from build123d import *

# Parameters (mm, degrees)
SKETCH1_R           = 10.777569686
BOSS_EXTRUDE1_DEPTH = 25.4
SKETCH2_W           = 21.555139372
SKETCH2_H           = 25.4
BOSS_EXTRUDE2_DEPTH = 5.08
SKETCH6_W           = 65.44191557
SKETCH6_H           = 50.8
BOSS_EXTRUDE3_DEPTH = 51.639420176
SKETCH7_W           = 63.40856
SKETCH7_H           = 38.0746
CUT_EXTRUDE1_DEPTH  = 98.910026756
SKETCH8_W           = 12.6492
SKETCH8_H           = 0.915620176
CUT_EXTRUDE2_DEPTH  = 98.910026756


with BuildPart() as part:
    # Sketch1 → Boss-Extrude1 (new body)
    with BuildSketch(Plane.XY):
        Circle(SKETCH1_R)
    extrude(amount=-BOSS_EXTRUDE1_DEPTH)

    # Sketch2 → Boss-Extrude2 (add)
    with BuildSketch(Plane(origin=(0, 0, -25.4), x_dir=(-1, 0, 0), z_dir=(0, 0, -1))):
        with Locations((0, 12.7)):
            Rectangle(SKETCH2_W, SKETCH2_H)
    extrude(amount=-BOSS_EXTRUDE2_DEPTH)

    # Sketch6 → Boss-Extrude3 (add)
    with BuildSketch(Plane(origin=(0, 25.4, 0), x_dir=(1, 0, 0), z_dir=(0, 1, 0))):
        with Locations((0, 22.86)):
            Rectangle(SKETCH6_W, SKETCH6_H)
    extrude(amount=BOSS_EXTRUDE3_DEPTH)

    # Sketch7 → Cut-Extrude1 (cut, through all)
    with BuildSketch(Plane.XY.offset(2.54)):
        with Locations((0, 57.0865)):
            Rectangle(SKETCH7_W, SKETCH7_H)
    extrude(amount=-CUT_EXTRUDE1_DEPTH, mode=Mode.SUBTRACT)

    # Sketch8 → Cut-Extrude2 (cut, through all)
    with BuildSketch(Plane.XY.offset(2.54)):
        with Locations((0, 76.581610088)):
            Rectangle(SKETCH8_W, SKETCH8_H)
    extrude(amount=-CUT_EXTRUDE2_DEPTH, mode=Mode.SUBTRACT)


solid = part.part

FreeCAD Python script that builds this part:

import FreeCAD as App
import Part
import Sketcher

V = App.Vector
Q = App.Units.Quantity

doc = App.newDocument("Part")
body = doc.addObject("PartDesign::Body", "Body")

sketch1 = body.newObject("Sketcher::SketchObject", "Sketch")
sketch1.AttachmentSupport = (doc.getObject("XY_Plane"), [""])
sketch1.MapMode = "FlatFace"
sketch1.addGeometry(Part.Circle(V(0, 0, 0), V(0, 0, 1), 10.77757), False)
sketch1.addConstraint(Sketcher.Constraint("Coincident", 0, 3, -1, 1))
sketch1.addConstraint(Sketcher.Constraint("Diameter", 0, Q("21.555139 mm")))
pad1 = body.newObject("PartDesign::Pad", "Pad")
pad1.Profile = sketch1
pad1.Length = Q("1 in")
pad1.Reversed = True

sketch2 = body.newObject("Sketcher::SketchObject", "Sketch001")
sketch2.AttachmentSupport = (doc.getObject("XY_Plane"), [""])
sketch2.MapMode = "FlatFace"
sketch2.AttachmentOffset = App.Placement(V(0, 0, -1 * 25.4), App.Rotation())
sketch2.addGeometry(Part.LineSegment(V(10.77757, 25.4, 0), V(10.77757, 0, 0)), False)
sketch2.addGeometry(Part.LineSegment(V(10.77757, 0, 0), V(-10.77757, 0, 0)), False)
sketch2.addGeometry(Part.LineSegment(V(-10.77757, 0, 0), V(-10.77757, 25.4, 0)), False)
sketch2.addGeometry(Part.LineSegment(V(-10.77757, 25.4, 0), V(10.77757, 25.4, 0)), False)
sketch2.addConstraint(Sketcher.Constraint("Coincident", 0, 2, 1, 1))
sketch2.addConstraint(Sketcher.Constraint("Coincident", 1, 2, 2, 1))
sketch2.addConstraint(Sketcher.Constraint("Coincident", 2, 2, 3, 1))
sketch2.addConstraint(Sketcher.Constraint("Coincident", 3, 2, 0, 1))
sketch2.addConstraint(Sketcher.Constraint("Vertical", 0))
sketch2.addConstraint(Sketcher.Constraint("Horizontal", 1))
sketch2.addConstraint(Sketcher.Constraint("Vertical", 2))
sketch2.addConstraint(Sketcher.Constraint("Horizontal", 3))
sketch2.addConstraint(Sketcher.Constraint("Symmetric", 0, 2, 1, 2, -1, 1))
sketch2.addConstraint(Sketcher.Constraint("DistanceY", 0, 2, 0, 1, Q("1 in")))
sketch2.addConstraint(Sketcher.Constraint("DistanceX", 1, 2, 1, 1, Q("21.555139 mm")))
pad2 = body.newObject("PartDesign::Pad", "Pad001")
pad2.Profile = sketch2
pad2.Length = Q("0.2 in")

sketch3 = body.newObject("Sketcher::SketchObject", "Sketch002")
sketch3.AttachmentSupport = (doc.getObject("XZ_Plane"), [""])
sketch3.MapMode = "FlatFace"
sketch3.AttachmentOffset = App.Placement(V(0, 0, -1 * 25.4), App.Rotation())
sketch3.addGeometry(Part.LineSegment(V(-32.720958, -48.26, 0), V(-32.720958, 2.54, 0)), False)
sketch3.addGeometry(Part.LineSegment(V(-32.720958, 2.54, 0), V(32.720958, 2.54, 0)), False)
sketch3.addGeometry(Part.LineSegment(V(32.720958, 2.54, 0), V(32.720958, -48.26, 0)), False)
sketch3.addGeometry(Part.LineSegment(V(32.720958, -48.26, 0), V(-32.720958, -48.26, 0)), False)
sketch3.addConstraint(Sketcher.Constraint("Coincident", 0, 2, 1, 1))
sketch3.addConstraint(Sketcher.Constraint("Coincident", 1, 2, 2, 1))
sketch3.addConstraint(Sketcher.Constraint("Coincident", 2, 2, 3, 1))
sketch3.addConstraint(Sketcher.Constraint("Coincident", 3, 2, 0, 1))
sketch3.addConstraint(Sketcher.Constraint("Vertical", 0))
sketch3.addConstraint(Sketcher.Constraint("Horizontal", 1))
sketch3.addConstraint(Sketcher.Constraint("Vertical", 2))
sketch3.addConstraint(Sketcher.Constraint("Horizontal", 3))
sketch3.addConstraint(Sketcher.Constraint("DistanceY", 0, 1, 0, 2, Q("2 in")))
sketch3.addConstraint(Sketcher.Constraint("DistanceY", -1, 1, 0, 2, Q("0.1 in")))
sketch3.addConstraint(Sketcher.Constraint("DistanceX", 1, 1, 1, 2, Q("65.441916 mm")))
sketch3.addConstraint(Sketcher.Constraint("DistanceX", 0, 2, -1, 1, Q("32.720958 mm")))
pad3 = body.newObject("PartDesign::Pad", "Pad002")
pad3.Profile = sketch3
pad3.Length = 51.63942
pad3.Reversed = True

sketch4 = body.newObject("Sketcher::SketchObject", "Sketch003")
sketch4.AttachmentSupport = (doc.getObject("XY_Plane"), [""])
sketch4.MapMode = "FlatFace"
sketch4.AttachmentOffset = App.Placement(V(0, 0, 0.1 * 25.4), App.Rotation())
sketch4.addGeometry(Part.LineSegment(V(-31.70428, 76.1238, 0), V(-31.70428, 38.0492, 0)), False)
sketch4.addGeometry(Part.LineSegment(V(-31.70428, 38.0492, 0), V(31.70428, 38.0492, 0)), False)
sketch4.addGeometry(Part.LineSegment(V(31.70428, 38.0492, 0), V(31.70428, 76.1238, 0)), False)
sketch4.addGeometry(Part.LineSegment(V(31.70428, 76.1238, 0), V(-31.70428, 76.1238, 0)), False)
sketch4.addConstraint(Sketcher.Constraint("Coincident", 0, 2, 1, 1))
sketch4.addConstraint(Sketcher.Constraint("Coincident", 1, 2, 2, 1))
sketch4.addConstraint(Sketcher.Constraint("Coincident", 2, 2, 3, 1))
sketch4.addConstraint(Sketcher.Constraint("Coincident", 3, 2, 0, 1))
sketch4.addConstraint(Sketcher.Constraint("Vertical", 0))
sketch4.addConstraint(Sketcher.Constraint("Horizontal", 1))
sketch4.addConstraint(Sketcher.Constraint("Vertical", 2))
sketch4.addConstraint(Sketcher.Constraint("Horizontal", 3))
sketch4.addConstraint(Sketcher.Constraint("DistanceY", 0, 2, 0, 1, Q("1.499 in")))
sketch4.addConstraint(Sketcher.Constraint("DistanceX", 1, 1, 1, 2, Q("2.4964 in")))
sketch4.addConstraint(Sketcher.Constraint("DistanceY", -1, 1, 0, 2, Q("1.498 in")))
sketch4.addConstraint(Sketcher.Constraint("DistanceX", 0, 2, -1, 1, Q("1.2482 in")))
pocket1 = body.newObject("PartDesign::Pocket", "Pocket")
pocket1.Profile = sketch4
pocket1.Type = "ThroughAll"

sketch5 = body.newObject("Sketcher::SketchObject", "Sketch004")
sketch5.AttachmentSupport = (doc.getObject("XY_Plane"), [""])
sketch5.MapMode = "FlatFace"
sketch5.AttachmentOffset = App.Placement(V(0, 0, 0.1 * 25.4), App.Rotation())
sketch5.addGeometry(Part.LineSegment(V(-6.3246, 77.03942, 0), V(-6.3246, 76.1238, 0)), False)
sketch5.addGeometry(Part.LineSegment(V(-6.3246, 76.1238, 0), V(6.3246, 76.1238, 0)), False)
sketch5.addGeometry(Part.LineSegment(V(6.3246, 76.1238, 0), V(6.3246, 77.03942, 0)), False)
sketch5.addGeometry(Part.LineSegment(V(6.3246, 77.03942, 0), V(-6.3246, 77.03942, 0)), False)
sketch5.addConstraint(Sketcher.Constraint("Coincident", 0, 2, 1, 1))
sketch5.addConstraint(Sketcher.Constraint("Coincident", 1, 2, 2, 1))
sketch5.addConstraint(Sketcher.Constraint("Coincident", 2, 2, 3, 1))
sketch5.addConstraint(Sketcher.Constraint("Coincident", 3, 2, 0, 1))
sketch5.addConstraint(Sketcher.Constraint("Vertical", 0))
sketch5.addConstraint(Sketcher.Constraint("Horizontal", 1))
sketch5.addConstraint(Sketcher.Constraint("Vertical", 2))
sketch5.addConstraint(Sketcher.Constraint("Horizontal", 3))
sketch5.addConstraint(Sketcher.Constraint("DistanceX", 1, 1, 1, 2, Q("0.498 in")))
sketch5.addConstraint(Sketcher.Constraint("DistanceX", 0, 2, -1, 1, Q("0.249 in")))
sketch5.addConstraint(Sketcher.Constraint("DistanceY", -1, 1, 0, 2, Q("2.997 in")))
sketch5.addConstraint(Sketcher.Constraint("DistanceY", 0, 2, 0, 1, Q("0.91562 mm")))
pocket2 = body.newObject("PartDesign::Pocket", "Pocket001")
pocket2.Profile = sketch5
pocket2.Type = "ThroughAll"

doc.recompute()
